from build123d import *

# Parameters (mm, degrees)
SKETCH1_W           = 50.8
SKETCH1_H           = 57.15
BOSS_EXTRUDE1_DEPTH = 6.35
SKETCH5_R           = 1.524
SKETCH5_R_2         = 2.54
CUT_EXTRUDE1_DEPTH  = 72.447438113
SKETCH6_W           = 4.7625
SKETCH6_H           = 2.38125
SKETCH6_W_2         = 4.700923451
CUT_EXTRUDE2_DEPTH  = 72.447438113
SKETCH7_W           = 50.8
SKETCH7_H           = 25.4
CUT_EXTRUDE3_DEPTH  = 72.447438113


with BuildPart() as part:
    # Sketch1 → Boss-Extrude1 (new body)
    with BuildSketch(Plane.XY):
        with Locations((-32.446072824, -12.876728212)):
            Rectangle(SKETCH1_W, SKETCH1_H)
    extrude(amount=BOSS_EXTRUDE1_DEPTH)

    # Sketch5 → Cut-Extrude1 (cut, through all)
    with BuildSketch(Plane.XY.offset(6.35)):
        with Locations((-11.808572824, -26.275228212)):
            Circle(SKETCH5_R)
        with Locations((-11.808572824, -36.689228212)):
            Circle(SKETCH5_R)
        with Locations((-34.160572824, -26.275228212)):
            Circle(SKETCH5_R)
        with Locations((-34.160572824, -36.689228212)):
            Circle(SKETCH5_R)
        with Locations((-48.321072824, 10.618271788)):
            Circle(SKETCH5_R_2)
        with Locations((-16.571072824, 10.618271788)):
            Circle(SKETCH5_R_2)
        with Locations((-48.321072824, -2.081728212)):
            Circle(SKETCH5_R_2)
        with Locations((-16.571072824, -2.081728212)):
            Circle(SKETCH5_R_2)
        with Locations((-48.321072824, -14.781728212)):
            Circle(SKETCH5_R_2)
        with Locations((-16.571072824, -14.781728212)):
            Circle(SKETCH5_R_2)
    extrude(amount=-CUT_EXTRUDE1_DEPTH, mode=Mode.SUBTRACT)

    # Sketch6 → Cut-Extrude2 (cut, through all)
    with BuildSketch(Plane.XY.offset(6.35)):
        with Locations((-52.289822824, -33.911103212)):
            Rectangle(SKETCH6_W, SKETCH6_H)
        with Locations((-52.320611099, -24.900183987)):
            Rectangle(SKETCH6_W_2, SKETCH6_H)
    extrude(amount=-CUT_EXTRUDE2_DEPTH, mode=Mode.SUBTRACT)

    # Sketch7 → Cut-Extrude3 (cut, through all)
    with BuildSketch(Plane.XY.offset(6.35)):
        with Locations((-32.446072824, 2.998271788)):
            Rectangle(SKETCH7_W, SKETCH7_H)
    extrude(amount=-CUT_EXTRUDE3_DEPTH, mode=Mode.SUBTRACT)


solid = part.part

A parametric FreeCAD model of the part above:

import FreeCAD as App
import Part
import Sketcher

V = App.Vector
Q = App.Units.Quantity


def add_polygon(sketch, points):
    """Adds a closed chain of lines whose ends are joined by coincident constraints."""
    first, n = sketch.GeometryCount, len(points)
    for a, b in zip(points, points[1:] + points[:1]):
        sketch.addGeometry(Part.LineSegment(App.Vector(*a, 0), App.Vector(*b, 0)), False)
    for i in range(n):
        sketch.addConstraint(Sketcher.Constraint("Coincident", first + i, 2, first + (i + 1) % n, 1))

doc = App.newDocument("Part")
body = doc.addObject("PartDesign::Body", "Body")

# Sketch on XY plane
sketch1 = body.newObject("Sketcher::SketchObject", "Sketch")
sketch1.AttachmentSupport = (doc.getObject("XY_Plane"), [""])
sketch1.MapMode = "FlatFace"
add_polygon(sketch1, [(-58, 16), (-58, -41), (-7, -41), (-7, 16)])  # lines 0-3
sketch1.addConstraint(Sketcher.Constraint("Vertical", 0))
sketch1.addConstraint(Sketcher.Constraint("Horizontal", 1))
sketch1.addConstraint(Sketcher.Constraint("Vertical", 2))
sketch1.addConstraint(Sketcher.Constraint("Horizontal", 3))
sketch1.addConstraint(Sketcher.Constraint("DistanceX", 1, 1, 1, 2, Q("2 in")))
sketch1.addConstraint(Sketcher.Constraint("DistanceY", 0, 2, 0, 1, Q("2.25 in")))
sketch1.addConstraint(Sketcher.Constraint("DistanceY", 0, 2, -1, 1, Q("41.451728 mm")))
sketch1.addConstraint(Sketcher.Constraint("DistanceX", 0, 2, -1, 1, Q("57.846073 mm")))
pad1 = body.newObject("PartDesign::Pad", "Pad")
pad1.Profile = sketch1
pad1.Length = Q("0.25 in")

# Sketch on XY plane
sketch2 = body.newObject("Sketcher::SketchObject", "Sketch001")
sketch2.AttachmentSupport = (doc.getObject("XY_Plane"), [""])
sketch2.MapMode = "FlatFace"
sketch2.AttachmentOffset = App.Placement(V(0, 0, 0.25 * 25.4), App.Rotation())
sketch2.addGeometry(Part.Circle(V(-11.8, -26.3, 0), V(0, 0, 1), 1.5), False)
sketch2.addGeometry(Part.Circle(V(-11.8, -36.7, 0), V(0, 0, 1), 1.5), False)
sketch2.addGeometry(Part.Circle(V(-34.2, -26.3, 0), V(0, 0, 1), 1.5), False)
sketch2.addGeometry(Part.Circle(V(-34.2, -36.7, 0), V(0, 0, 1), 1.5), False)
sketch2.addGeometry(Part.Circle(V(-48.3, 10.6, 0), V(0, 0, 1), 2.5), False)
sketch2.addGeometry(Part.Circle(V(-16.6, 10.6, 0), V(0, 0, 1), 2.5), False)
sketch2.addGeometry(Part.Circle(V(-48.3, -2.1, 0), V(0, 0, 1), 2.5), False)
sketch2.addGeometry(Part.Circle(V(-16.6, -2.1, 0), V(0, 0, 1), 2.5), False)
sketch2.addGeometry(Part.Circle(V(-48.3, -14.8, 0), V(0, 0, 1), 2.5), False)
sketch2.addGeometry(Part.Circle(V(-16.6, -14.8, 0), V(0, 0, 1), 2.5), False)
sketch2.addConstraint(Sketcher.Constraint("Equal", 0, 1))
sketch2.addConstraint(Sketcher.Constraint("Equal", 1, 2))
sketch2.addConstraint(Sketcher.Constraint("Equal", 2, 3))
sketch2.addConstraint(Sketcher.Constraint("Equal", 4, 5))
sketch2.addConstraint(Sketcher.Constraint("Equal", 5, 6))
sketch2.addConstraint(Sketcher.Constraint("Equal", 6, 7))
sketch2.addConstraint(Sketcher.Constraint("Equal", 7, 8))
sketch2.addConstraint(Sketcher.Constraint("Equal", 8, 9))
sketch2.addConstraint(Sketcher.Constraint("Horizontal", 0, 3, 2, 3))
sketch2.addConstraint(Sketcher.Constraint("Horizontal", 1, 3, 3, 3))
sketch2.addConstraint(Sketcher.Constraint("Horizontal", 4, 3, 5, 3))
sketch2.addConstraint(Sketcher.Constraint("Horizontal", 6, 3, 7, 3))
sketch2.addConstraint(Sketcher.Constraint("Horizontal", 8, 3, 9, 3))
sketch2.addConstraint(Sketcher.Constraint("Vertical", 0, 3, 1, 3))
sketch2.addConstraint(Sketcher.Constraint("Vertical", 2, 3, 3, 3))
sketch2.addConstraint(Sketcher.Constraint("Vertical", 4, 3, 6, 3))
sketch2.addConstraint(Sketcher.Constraint("Vertical", 5, 3, 7, 3))
sketch2.addConstraint(Sketcher.Constraint("Vertical", 6, 3, 8, 3))
sketch2.addConstraint(Sketcher.Constraint("Vertical", 7, 3, 9, 3))
sketch2.addConstraint(Sketcher.Constraint("Diameter", 4, Q("0.2 in")))
sketch2.addConstraint(Sketcher.Constraint("Diameter", 0, Q("0.12 in")))
sketch2.addConstraint(Sketcher.Constraint("DistanceY", 8, 3, 4, 3, Q("1 in")))
sketch2.addConstraint(Sketcher.Constraint("DistanceY", 6, 3, 4, 3, Q("0.5 in")))
sketch2.addConstraint(Sketcher.Constraint("DistanceY", 1, 3, 0, 3, Q("0.41 in")))
sketch2.addConstraint(Sketcher.Constraint("DistanceX", 2, 3, 0, 3, Q("0.88 in")))
sketch2.addConstraint(Sketcher.Constraint("DistanceX", 4, 3, 5, 3, Q("1.25 in")))
sketch2.addConstraint(Sketcher.Constraint("DistanceX", 4, 3, 0, 3, Q("1.4375 in")))
sketch2.addConstraint(Sketcher.Constraint("DistanceY", 2, 3, 4, 3, Q("1.4525 in")))
sketch2.addConstraint(Sketcher.Constraint("DistanceY", 0, 3, -1, 1, Q("26.275228 mm")))
sketch2.addConstraint(Sketcher.Constraint("DistanceX", 0, 3, -1, 1, Q("11.808573 mm")))
pocket1 = body.newObject("PartDesign::Pocket", "Pocket")
pocket1.Profile = sketch2
pocket1.Type = "ThroughAll"

# Sketch on XY plane
sketch3 = body.newObject("Sketcher::SketchObject", "Sketch002")
sketch3.AttachmentSupport = (doc.getObject("XY_Plane"), [""])
sketch3.MapMode = "FlatFace"
sketch3.AttachmentOffset = App.Placement(V(0, 0, 0.25 * 25.4), App.Rotation())
add_polygon(sketch3, [(-54.7, -32.7), (-54.7, -35.1), (-49.9, -35.1), (-49.9, -32.7)])  # lines 0-3
add_polygon(sketch3, [(-54.7, -23.7), (-54.7, -26.1), (-50, -26.1), (-50, -23.7)])  # lines 4-7
sketch3.addConstraint(Sketcher.Constraint("Vertical", 0))
sketch3.addConstraint(Sketcher.Constraint("Horizontal", 1))
sketch3.addConstraint(Sketcher.Constraint("Vertical", 2))
sketch3.addConstraint(Sketcher.Constraint("Horizontal", 3))
sketch3.addConstraint(Sketcher.Constraint("Vertical", 4))
sketch3.addConstraint(Sketcher.Constraint("Horizontal", 5))
sketch3.addConstraint(Sketcher.Constraint("Vertical", 6))
sketch3.addConstraint(Sketcher.Constraint("Horizontal", 7))
sketch3.addConstraint(Sketcher.Constraint("Vertical", 3, 2, 4, 2))
sketch3.addConstraint(Sketcher.Constraint("Equal", 2, 4))
sketch3.addConstraint(Sketcher.Constraint("DistanceX", 1, 1, 1, 2, Q("0.1875 in")))
sketch3.addConstraint(Sketcher.Constraint("DistanceY", 0, 2, 0, 1, Q("0.09375 in")))
sketch3.addConstraint(Sketcher.Constraint("DistanceX", 5, 1, 5, 2, Q("4.700923 mm")))
sketch3.addConstraint(Sketcher.Constraint("DistanceY", 0, 2, -1, 1, Q("35.101728 mm")))
sketch3.addConstraint(Sketcher.Constraint("DistanceY", 4, 2, -1, 1, Q("26.090809 mm")))
sketch3.addConstraint(Sketcher.Constraint("DistanceX", 5, 2, -1, 1, Q("49.970149 mm")))
pocket2 = body.newObject("PartDesign::Pocket", "Pocket001")
pocket2.Profile = sketch3
pocket2.Type = "ThroughAll"

# Sketch on XY plane
sketch4 = body.newObject("Sketcher::SketchObject", "Sketch003")
sketch4.AttachmentSupport = (doc.getObject("XY_Plane"), [""])
sketch4.MapMode = "FlatFace"
sketch4.AttachmentOffset = App.Placement(V(0, 0, 0.25 * 25.4), App.Rotation())
add_polygon(sketch4, [(-58, 16), (-58, -10), (-7, -10), (-7, 16)])  # lines 0-3
sketch4.addConstraint(Sketcher.Constraint("Vertical", 0))
sketch4.addConstraint(Sketcher.Constraint("Horizontal", 1))
sketch4.addConstraint(Sketcher.Constraint("Vertical", 2))
sketch4.addConstraint(Sketcher.Constraint("Horizontal", 3))
sketch4.addConstraint(Sketcher.Constraint("DistanceX", 1, 1, 1, 2, Q("2 in")))
sketch4.addConstraint(Sketcher.Constraint("DistanceY", 0, 2, 0, 1, Q("1 in")))
sketch4.addConstraint(Sketcher.Constraint("DistanceY", 0, 2, -1, 1, Q("9.701728 mm")))
sketch4.addConstraint(Sketcher.Constraint("DistanceX", 0, 2, -1, 1, Q("57.846073 mm")))
pocket3 = body.newObject("PartDesign::Pocket", "Pocket002")
pocket3.Profile = sketch4
pocket3.Type = "ThroughAll"

doc.recompute()
